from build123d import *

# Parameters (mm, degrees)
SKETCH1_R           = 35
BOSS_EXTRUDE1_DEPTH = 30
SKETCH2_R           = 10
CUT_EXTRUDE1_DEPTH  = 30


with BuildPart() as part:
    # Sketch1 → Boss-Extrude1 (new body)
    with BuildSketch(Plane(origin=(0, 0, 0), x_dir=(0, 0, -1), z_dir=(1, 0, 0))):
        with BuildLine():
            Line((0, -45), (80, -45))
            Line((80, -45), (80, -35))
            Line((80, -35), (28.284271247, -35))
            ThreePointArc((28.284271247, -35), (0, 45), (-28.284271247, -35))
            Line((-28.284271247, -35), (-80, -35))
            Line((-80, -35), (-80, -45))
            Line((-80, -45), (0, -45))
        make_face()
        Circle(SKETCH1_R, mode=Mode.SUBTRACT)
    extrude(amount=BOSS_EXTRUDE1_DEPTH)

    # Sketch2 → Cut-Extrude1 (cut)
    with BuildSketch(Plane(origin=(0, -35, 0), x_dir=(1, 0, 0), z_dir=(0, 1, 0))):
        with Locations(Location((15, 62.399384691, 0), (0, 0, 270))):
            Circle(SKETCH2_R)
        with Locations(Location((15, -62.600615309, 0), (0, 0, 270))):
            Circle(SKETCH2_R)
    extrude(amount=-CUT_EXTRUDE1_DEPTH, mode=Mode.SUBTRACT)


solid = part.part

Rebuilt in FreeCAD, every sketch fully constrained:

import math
import FreeCAD as App
import Part
import Sketcher
Q = App.Units.Quantity

doc = App.newDocument("Part")
params = doc.addObject("Spreadsheet::Sheet", "Params")
for row, (alias, value) in enumerate([
    ("sketch1_diameter", "70 mm"),
    ("sketch1_radius", "45 mm"),
    ("sketch1_width", "10 mm"),
    ("sketch1_height", "160 mm"),
    ("pad1_length", "30 mm"),
    ("sketch2_diameter", "20 mm"),
    ("pocket1_length", "30 mm"),
], start=1):
    params.set(f"A{row}", alias)
    params.set(f"B{row}", "=" + value)
    params.setAlias(f"B{row}", alias)

body = doc.addObject("PartDesign::Body", "Body")

sketch1 = body.newObject("Sketcher::SketchObject", "Sketch")
sketch1.AttachmentSupport = (doc.getObject("YZ_Plane"), [""])
sketch1.MapMode = "FlatFace"
sketch1.addGeometry(Part.LineSegment(App.Vector(-45, -80, 0), App.Vector(-35, -80, 0)), False)
sketch1.addGeometry(Part.LineSegment(App.Vector(-35, -80, 0), App.Vector(-35, -28, 0)), False)
sketch1.addGeometry(Part.ArcOfCircle(Part.Circle(App.Vector(0, 0, 0), App.Vector(0, 0, 1), 45), math.radians(-141), math.radians(141)), False)
sketch1.addGeometry(Part.LineSegment(App.Vector(-35, 28, 0), App.Vector(-35, 80, 0)), False)
sketch1.addGeometry(Part.LineSegment(App.Vector(-35, 80, 0), App.Vector(-45, 80, 0)), False)
sketch1.addGeometry(Part.LineSegment(App.Vector(-45, 80, 0), App.Vector(-45, -80, 0)), False)
sketch1.addGeometry(Part.Circle(App.Vector(0, 0, 0), App.Vector(0, 0, 1), 35), False)
sketch1.addConstraint(Sketcher.Constraint("Coincident", 0, 2, 1, 1))
sketch1.addConstraint(Sketcher.Constraint("Coincident", 1, 2, 2, 1))
sketch1.addConstraint(Sketcher.Constraint("Coincident", 2, 2, 3, 1))
sketch1.addConstraint(Sketcher.Constraint("Coincident", 3, 2, 4, 1))
sketch1.addConstraint(Sketcher.Constraint("Coincident", 4, 2, 5, 1))
sketch1.addConstraint(Sketcher.Constraint("Coincident", 5, 2, 0, 1))
sketch1.addConstraint(Sketcher.Constraint("Horizontal", 0))
sketch1.addConstraint(Sketcher.Constraint("Vertical", 1))
sketch1.addConstraint(Sketcher.Constraint("Vertical", 3))
sketch1.addConstraint(Sketcher.Constraint("Horizontal", 4))
sketch1.addConstraint(Sketcher.Constraint("Vertical", 5))
sketch1.addConstraint(Sketcher.Constraint("Coincident", 2, 3, -1, 1))
sketch1.addConstraint(Sketcher.Constraint("Coincident", 6, 3, -1, 1))
sketch1.addConstraint(Sketcher.Constraint("Symmetric", 0, 2, 3, 2, -1))
sketch1.addConstraint(Sketcher.Constraint("Diameter", 6, Q("70 mm")))
sketch1.addConstraint(Sketcher.Constraint("Radius", 2, Q("45 mm")))
sketch1.addConstraint(Sketcher.Constraint("DistanceX", 0, 1, 0, 2, Q("10 mm")))
sketch1.addConstraint(Sketcher.Constraint("DistanceY", 5, 2, 5, 1, Q("160 mm")))
sketch1.addConstraint(Sketcher.Constraint("DistanceX", 0, 2, -1, 1, Q("35 mm")))
sketch1.setExpression("Constraints[14]", "Params.sketch1_diameter")
sketch1.setExpression("Constraints[15]", "Params.sketch1_radius")
sketch1.setExpression("Constraints[16]", "Params.sketch1_width")
sketch1.setExpression("Constraints[17]", "Params.sketch1_height")
pad1 = body.newObject("PartDesign::Pad", "Pad")
pad1.Profile = sketch1
pad1.setExpression("Length", "Params.pad1_length")

sketch2 = body.newObject("Sketcher::SketchObject", "Sketch001")
sketch2.AttachmentSupport = (doc.getObject("XZ_Plane"), [""])
sketch2.MapMode = "FlatFace"
sketch2.AttachmentOffset = App.Placement(App.Vector(0, 0, 35), App.Rotation())
sketch2.addGeometry(Part.Circle(App.Vector(15, -62, 0), App.Vector(0, 0, 1), 10), False)
sketch2.addGeometry(Part.Circle(App.Vector(15, 63, 0), App.Vector(0, 0, 1), 10), False)
sketch2.addConstraint(Sketcher.Constraint("Equal", 0, 1))
sketch2.addConstraint(Sketcher.Constraint("Vertical", 0, 3, 1, 3))
sketch2.addConstraint(Sketcher.Constraint("Diameter", 0, Q("20 mm")))
sketch2.addConstraint(Sketcher.Constraint("DistanceX", -1, 1, 0, 3, Q("15 mm")))
sketch2.addConstraint(Sketcher.Constraint("DistanceY", 0, 3, 1, 3, Q("125 mm")))
sketch2.addConstraint(Sketcher.Constraint("DistanceY", 0, 3, -1, 1, Q("62.399385 mm")))
sketch2.setExpression("Constraints[2]", "Params.sketch2_diameter")
pocket1 = body.newObject("PartDesign::Pocket", "Pocket")
pocket1.Profile = sketch2
pocket1.setExpression("Length", "Params.pocket1_length")
pocket1.Reversed = True

doc.recompute()
